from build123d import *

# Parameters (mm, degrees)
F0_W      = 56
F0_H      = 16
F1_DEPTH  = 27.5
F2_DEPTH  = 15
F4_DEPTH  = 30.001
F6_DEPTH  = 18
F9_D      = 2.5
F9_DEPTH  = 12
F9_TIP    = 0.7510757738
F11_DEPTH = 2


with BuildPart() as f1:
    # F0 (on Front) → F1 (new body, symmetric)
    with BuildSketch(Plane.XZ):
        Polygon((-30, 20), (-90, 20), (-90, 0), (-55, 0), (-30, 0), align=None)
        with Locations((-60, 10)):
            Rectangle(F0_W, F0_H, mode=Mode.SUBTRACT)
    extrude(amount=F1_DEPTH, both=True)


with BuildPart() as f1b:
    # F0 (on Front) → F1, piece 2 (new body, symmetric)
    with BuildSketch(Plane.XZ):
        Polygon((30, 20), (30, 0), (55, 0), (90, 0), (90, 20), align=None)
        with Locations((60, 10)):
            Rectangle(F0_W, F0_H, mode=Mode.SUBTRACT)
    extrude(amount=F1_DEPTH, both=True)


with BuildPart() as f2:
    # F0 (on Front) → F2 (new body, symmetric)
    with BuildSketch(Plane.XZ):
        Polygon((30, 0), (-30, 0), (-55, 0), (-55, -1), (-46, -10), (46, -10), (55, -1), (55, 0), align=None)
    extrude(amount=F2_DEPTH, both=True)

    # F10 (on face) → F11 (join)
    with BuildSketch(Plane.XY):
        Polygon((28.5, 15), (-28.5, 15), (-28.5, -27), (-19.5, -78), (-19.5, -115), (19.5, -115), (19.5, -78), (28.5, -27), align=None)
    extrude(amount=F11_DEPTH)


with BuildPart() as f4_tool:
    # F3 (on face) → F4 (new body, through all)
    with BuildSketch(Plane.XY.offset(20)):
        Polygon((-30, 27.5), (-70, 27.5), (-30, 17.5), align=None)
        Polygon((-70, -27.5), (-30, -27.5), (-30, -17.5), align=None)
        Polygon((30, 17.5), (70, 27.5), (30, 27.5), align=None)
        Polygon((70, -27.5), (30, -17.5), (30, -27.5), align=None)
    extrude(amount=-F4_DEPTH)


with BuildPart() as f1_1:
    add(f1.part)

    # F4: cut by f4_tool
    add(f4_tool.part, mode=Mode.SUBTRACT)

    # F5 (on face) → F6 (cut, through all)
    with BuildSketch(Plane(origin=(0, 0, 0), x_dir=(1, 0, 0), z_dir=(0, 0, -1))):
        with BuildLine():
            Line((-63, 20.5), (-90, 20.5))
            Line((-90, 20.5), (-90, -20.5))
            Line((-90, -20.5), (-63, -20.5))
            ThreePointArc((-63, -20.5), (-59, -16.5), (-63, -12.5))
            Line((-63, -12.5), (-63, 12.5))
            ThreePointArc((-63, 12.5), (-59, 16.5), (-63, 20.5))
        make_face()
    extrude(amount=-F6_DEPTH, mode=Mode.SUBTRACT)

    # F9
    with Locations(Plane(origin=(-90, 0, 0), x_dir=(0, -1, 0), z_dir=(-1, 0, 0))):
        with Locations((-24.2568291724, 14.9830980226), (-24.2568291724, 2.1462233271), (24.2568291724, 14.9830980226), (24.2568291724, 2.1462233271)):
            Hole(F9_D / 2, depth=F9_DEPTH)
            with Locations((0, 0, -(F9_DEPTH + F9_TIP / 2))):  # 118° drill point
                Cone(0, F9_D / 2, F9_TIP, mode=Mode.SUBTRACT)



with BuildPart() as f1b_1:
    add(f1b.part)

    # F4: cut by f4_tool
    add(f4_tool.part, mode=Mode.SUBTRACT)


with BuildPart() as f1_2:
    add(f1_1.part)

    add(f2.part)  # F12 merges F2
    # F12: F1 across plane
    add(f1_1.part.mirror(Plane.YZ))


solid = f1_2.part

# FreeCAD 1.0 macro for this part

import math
import FreeCAD as App
import Part
import Sketcher
from FreeCAD import Vector

doc = App.newDocument("Part")
body = doc.addObject("PartDesign::Body", "Body")

# Sketch on XZ plane
sketch1 = body.newObject("Sketcher::SketchObject", "Sketch")
sketch1.AttachmentSupport = (doc.getObject("XZ_Plane"), [""])
sketch1.MapMode = "FlatFace"
sketch1.addGeometry(Part.LineSegment(Vector(-30, 20, 0), Vector(-90, 20, 0)), False)
sketch1.addGeometry(Part.LineSegment(Vector(-90, 20, 0), Vector(-90, 0, 0)), False)
sketch1.addGeometry(Part.LineSegment(Vector(-90, 0, 0), Vector(-30, 0, 0)), False)
sketch1.addGeometry(Part.LineSegment(Vector(-30, 0, 0), Vector(-30, 20, 0)), False)
sketch1.addGeometry(Part.LineSegment(Vector(-32, 2, 0), Vector(-88, 2, 0)), False)
sketch1.addGeometry(Part.LineSegment(Vector(-88, 2, 0), Vector(-88, 18, 0)), False)
sketch1.addGeometry(Part.LineSegment(Vector(-88, 18, 0), Vector(-32, 18, 0)), False)
sketch1.addGeometry(Part.LineSegment(Vector(-32, 18, 0), Vector(-32, 2, 0)), False)
sketch1.addConstraint(Sketcher.Constraint("Coincident", 0, 2, 1, 1))
sketch1.addConstraint(Sketcher.Constraint("Coincident", 1, 2, 2, 1))
sketch1.addConstraint(Sketcher.Constraint("Coincident", 2, 2, 3, 1))
sketch1.addConstraint(Sketcher.Constraint("Coincident", 3, 2, 0, 1))
sketch1.addConstraint(Sketcher.Constraint("Coincident", 4, 2, 5, 1))
sketch1.addConstraint(Sketcher.Constraint("Coincident", 5, 2, 6, 1))
sketch1.addConstraint(Sketcher.Constraint("Coincident", 6, 2, 7, 1))
sketch1.addConstraint(Sketcher.Constraint("Coincident", 7, 2, 4, 1))
sketch1.addConstraint(Sketcher.Constraint("Horizontal", 0))
sketch1.addConstraint(Sketcher.Constraint("Vertical", 1))
sketch1.addConstraint(Sketcher.Constraint("Horizontal", 2))
sketch1.addConstraint(Sketcher.Constraint("Vertical", 3))
sketch1.addConstraint(Sketcher.Constraint("Horizontal", 4))
sketch1.addConstraint(Sketcher.Constraint("Vertical", 5))
sketch1.addConstraint(Sketcher.Constraint("Horizontal", 6))
sketch1.addConstraint(Sketcher.Constraint("Vertical", 7))
sketch1.addConstraint(Sketcher.Constraint("PointOnObject", 1, 2, -1))
sketch1.addConstraint(Sketcher.Constraint("DistanceX", 0, 2, 0, 1, 60.0))
sketch1.addConstraint(Sketcher.Constraint("DistanceX", 4, 2, 4, 1, 56.0))
sketch1.addConstraint(Sketcher.Constraint("DistanceY", 1, 2, 1, 1, 20.0))
sketch1.addConstraint(Sketcher.Constraint("DistanceY", 5, 1, 5, 2, 16.0))
sketch1.addConstraint(Sketcher.Constraint("DistanceX", 0, 2, -1, 1, 90.0))
sketch1.addConstraint(Sketcher.Constraint("DistanceX", 4, 2, -1, 1, 88.0))
sketch1.addConstraint(Sketcher.Constraint("DistanceY", -1, 1, 4, 2, 2.0))
pad1 = body.newObject("PartDesign::Pad", "Pad")
pad1.Profile = sketch1
pad1.Length = 55
pad1.Midplane = True
body2 = doc.addObject("PartDesign::Body", "Body001")

# Sketch on XZ plane
sketch2 = body2.newObject("Sketcher::SketchObject", "Sketch001")
sketch2.AttachmentSupport = (doc.getObject("XZ_Plane001"), [""])
sketch2.MapMode = "FlatFace"
sketch2.addGeometry(Part.LineSegment(Vector(30, 20, 0), Vector(30, 0, 0)), False)
sketch2.addGeometry(Part.LineSegment(Vector(30, 0, 0), Vector(90, 0, 0)), False)
sketch2.addGeometry(Part.LineSegment(Vector(90, 0, 0), Vector(90, 20, 0)), False)
sketch2.addGeometry(Part.LineSegment(Vector(90, 20, 0), Vector(30, 20, 0)), False)
sketch2.addGeometry(Part.LineSegment(Vector(88, 2, 0), Vector(32, 2, 0)), False)
sketch2.addGeometry(Part.LineSegment(Vector(32, 2, 0), Vector(32, 18, 0)), False)
sketch2.addGeometry(Part.LineSegment(Vector(32, 18, 0), Vector(88, 18, 0)), False)
sketch2.addGeometry(Part.LineSegment(Vector(88, 18, 0), Vector(88, 2, 0)), False)
sketch2.addConstraint(Sketcher.Constraint("Coincident", 0, 2, 1, 1))
sketch2.addConstraint(Sketcher.Constraint("Coincident", 1, 2, 2, 1))
sketch2.addConstraint(Sketcher.Constraint("Coincident", 2, 2, 3, 1))
sketch2.addConstraint(Sketcher.Constraint("Coincident", 3, 2, 0, 1))
sketch2.addConstraint(Sketcher.Constraint("Coincident", 4, 2, 5, 1))
sketch2.addConstraint(Sketcher.Constraint("Coincident", 5, 2, 6, 1))
sketch2.addConstraint(Sketcher.Constraint("Coincident", 6, 2, 7, 1))
sketch2.addConstraint(Sketcher.Constraint("Coincident", 7, 2, 4, 1))
sketch2.addConstraint(Sketcher.Constraint("Vertical", 0))
sketch2.addConstraint(Sketcher.Constraint("Horizontal", 1))
sketch2.addConstraint(Sketcher.Constraint("Vertical", 2))
sketch2.addConstraint(Sketcher.Constraint("Horizontal", 3))
sketch2.addConstraint(Sketcher.Constraint("Horizontal", 4))
sketch2.addConstraint(Sketcher.Constraint("Vertical", 5))
sketch2.addConstraint(Sketcher.Constraint("Horizontal", 6))
sketch2.addConstraint(Sketcher.Constraint("Vertical", 7))
sketch2.addConstraint(Sketcher.Constraint("PointOnObject", 0, 2, -1))
sketch2.addConstraint(Sketcher.Constraint("DistanceX", 1, 1, 1, 2, 60.0))
sketch2.addConstraint(Sketcher.Constraint("DistanceX", 4, 2, 4, 1, 56.0))
sketch2.addConstraint(Sketcher.Constraint("DistanceY", 0, 2, 0, 1, 20.0))
sketch2.addConstraint(Sketcher.Constraint("DistanceY", 5, 1, 5, 2, 16.0))
sketch2.addConstraint(Sketcher.Constraint("DistanceX", -1, 1, 0, 2, 30.0))
sketch2.addConstraint(Sketcher.Constraint("DistanceX", -1, 1, 4, 2, 32.0))
sketch2.addConstraint(Sketcher.Constraint("DistanceY", -1, 1, 4, 2, 2.0))
pad2 = body2.newObject("PartDesign::Pad", "Pad001")
pad2.Profile = sketch2
pad2.Length = 55
pad2.Midplane = True
body3 = doc.addObject("PartDesign::Body", "Body002")

# Sketch on XZ plane
sketch3 = body3.newObject("Sketcher::SketchObject", "Sketch002")
sketch3.AttachmentSupport = (doc.getObject("XZ_Plane002"), [""])
sketch3.MapMode = "FlatFace"
sketch3.addGeometry(Part.LineSegment(Vector(-55, 0, 0), Vector(-55, -1, 0)), False)
sketch3.addGeometry(Part.LineSegment(Vector(-55, -1, 0), Vector(-46, -10, 0)), False)
sketch3.addGeometry(Part.LineSegment(Vector(-46, -10, 0), Vector(46, -10, 0)), False)
sketch3.addGeometry(Part.LineSegment(Vector(46, -10, 0), Vector(55, -1, 0)), False)
sketch3.addGeometry(Part.LineSegment(Vector(55, -1, 0), Vector(55, 0, 0)), False)
sketch3.addGeometry(Part.LineSegment(Vector(55, 0, 0), Vector(-55, 0, 0)), False)
sketch3.addConstraint(Sketcher.Constraint("Coincident", 0, 2, 1, 1))
sketch3.addConstraint(Sketcher.Constraint("Coincident", 1, 2, 2, 1))
sketch3.addConstraint(Sketcher.Constraint("Coincident", 2, 2, 3, 1))
sketch3.addConstraint(Sketcher.Constraint("Coincident", 3, 2, 4, 1))
sketch3.addConstraint(Sketcher.Constraint("Coincident", 4, 2, 5, 1))
sketch3.addConstraint(Sketcher.Constraint("Coincident", 5, 2, 0, 1))
sketch3.addConstraint(Sketcher.Constraint("Vertical", 0))
sketch3.addConstraint(Sketcher.Constraint("Horizontal", 2))
sketch3.addConstraint(Sketcher.Constraint("Vertical", 4))
sketch3.addConstraint(Sketcher.Constraint("Horizontal", 5))
sketch3.addConstraint(Sketcher.Constraint("Symmetric", 4, 2, 5, 2, -1, 1))
sketch3.addConstraint(Sketcher.Constraint("Perpendicular", 1, 3))
sketch3.addConstraint(Sketcher.Constraint("Horizontal", 0, 2, 3, 2))
sketch3.addConstraint(Sketcher.Constraint("Equal", 1, 3))
sketch3.addConstraint(Sketcher.Constraint("DistanceX", 2, 1, 2, 2, 92.0))
sketch3.addConstraint(Sketcher.Constraint("DistanceX", 5, 2, 5, 1, 110.0))
sketch3.addConstraint(Sketcher.Constraint("DistanceY", 0, 2, 0, 1, 1.0))
pad3 = body3.newObject("PartDesign::Pad", "Pad002")
pad3.Profile = sketch3
pad3.Length = 30
pad3.Midplane = True

# Sketch on XY plane
sketch4 = body3.newObject("Sketcher::SketchObject", "Sketch003")
sketch4.AttachmentSupport = (doc.getObject("XY_Plane002"), [""])
sketch4.MapMode = "FlatFace"
sketch4.addGeometry(Part.LineSegment(Vector(28.5, 15, 0), Vector(-28.5, 15, 0)), False)
sketch4.addGeometry(Part.LineSegment(Vector(-28.5, 15, 0), Vector(-28.5, -27, 0)), False)
sketch4.addGeometry(Part.LineSegment(Vector(-28.5, -27, 0), Vector(-19.5, -78, 0)), False)
sketch4.addGeometry(Part.LineSegment(Vector(-19.5, -78, 0), Vector(-19.5, -115, 0)), False)
sketch4.addGeometry(Part.LineSegment(Vector(-19.5, -115, 0), Vector(19.5, -115, 0)), False)
sketch4.addGeometry(Part.LineSegment(Vector(19.5, -115, 0), Vector(19.5, -78, 0)), False)
sketch4.addGeometry(Part.LineSegment(Vector(19.5, -78, 0), Vector(28.5, -27, 0)), False)
sketch4.addGeometry(Part.LineSegment(Vector(28.5, -27, 0), Vector(28.5, 15, 0)), False)
sketch4.addConstraint(Sketcher.Constraint("Coincident", 0, 2, 1, 1))
sketch4.addConstraint(Sketcher.Constraint("Coincident", 1, 2, 2, 1))
sketch4.addConstraint(Sketcher.Constraint("Coincident", 2, 2, 3, 1))
sketch4.addConstraint(Sketcher.Constraint("Coincident", 3, 2, 4, 1))
sketch4.addConstraint(Sketcher.Constraint("Coincident", 4, 2, 5, 1))
sketch4.addConstraint(Sketcher.Constraint("Coincident", 5, 2, 6, 1))
sketch4.addConstraint(Sketcher.Constraint("Coincident", 6, 2, 7, 1))
sketch4.addConstraint(Sketcher.Constraint("Coincident", 7, 2, 0, 1))
sketch4.addConstraint(Sketcher.Constraint("Horizontal", 0))
sketch4.addConstraint(Sketcher.Constraint("Vertical", 1))
sketch4.addConstraint(Sketcher.Constraint("Vertical", 3))
sketch4.addConstraint(Sketcher.Constraint("Horizontal", 4))
sketch4.addConstraint(Sketcher.Constraint("Vertical", 5))
sketch4.addConstraint(Sketcher.Constraint("Vertical", 7))
sketch4.addConstraint(Sketcher.Constraint("Symmetric", 2, 2, 5, 2, -2))
sketch4.addConstraint(Sketcher.Constraint("Symmetric", 1, 2, 6, 2, -2))
sketch4.addConstraint(Sketcher.Constraint("DistanceX", 0, 2, 0, 1, 57.0))
sketch4.addConstraint(Sketcher.Constraint("DistanceX", 4, 1, 4, 2, 39.0))
sketch4.addConstraint(Sketcher.Constraint("DistanceY", 1, 2, 1, 1, 42.0))
sketch4.addConstraint(Sketcher.Constraint("DistanceY", 3, 2, 3, 1, 37.0))
sketch4.addConstraint(Sketcher.Constraint("DistanceY", -1, 1, 0, 2, 15.0))
sketch4.addConstraint(Sketcher.Constraint("DistanceY", 2, 2, -1, 1, 78.0))
pad4 = body3.newObject("PartDesign::Pad", "Pad003")
pad4.Profile = sketch4
pad4.Length = 2
body4 = doc.addObject("PartDesign::Body", "Body003")
body4.AllowCompound = True

# Sketch on XY plane
sketch5 = body4.newObject("Sketcher::SketchObject", "Sketch004")
sketch5.AttachmentSupport = (doc.getObject("XY_Plane003"), [""])
sketch5.MapMode = "FlatFace"
sketch5.AttachmentOffset = App.Placement(Vector(0, 0, 20), App.Rotation())
sketch5.addGeometry(Part.LineSegment(Vector(-30, 27.5, 0), Vector(-70, 27.5, 0)), False)
sketch5.addGeometry(Part.LineSegment(Vector(-70, 27.5, 0), Vector(-30, 17.5, 0)), False)
sketch5.addGeometry(Part.LineSegment(Vector(-30, 17.5, 0), Vector(-30, 27.5, 0)), False)
sketch5.addGeometry(Part.LineSegment(Vector(-70, -27.5, 0), Vector(-30, -27.5, 0)), False)
sketch5.addGeometry(Part.LineSegment(Vector(-30, -27.5, 0), Vector(-30, -17.5, 0)), False)
sketch5.addGeometry(Part.LineSegment(Vector(-30, -17.5, 0), Vector(-70, -27.5, 0)), False)
sketch5.addGeometry(Part.LineSegment(Vector(30, 17.5, 0), Vector(70, 27.5, 0)), False)
sketch5.addGeometry(Part.LineSegment(Vector(70, 27.5, 0), Vector(30, 27.5, 0)), False)
sketch5.addGeometry(Part.LineSegment(Vector(30, 27.5, 0), Vector(30, 17.5, 0)), False)
sketch5.addGeometry(Part.LineSegment(Vector(70, -27.5, 0), Vector(30, -17.5, 0)), False)
sketch5.addGeometry(Part.LineSegment(Vector(30, -17.5, 0), Vector(30, -27.5, 0)), False)
sketch5.addGeometry(Part.LineSegment(Vector(30, -27.5, 0), Vector(70, -27.5, 0)), False)
sketch5.addConstraint(Sketcher.Constraint("Coincident", 0, 2, 1, 1))
sketch5.addConstraint(Sketcher.Constraint("Coincident", 1, 2, 2, 1))
sketch5.addConstraint(Sketcher.Constraint("Coincident", 2, 2, 0, 1))
sketch5.addConstraint(Sketcher.Constraint("Coincident", 3, 2, 4, 1))
sketch5.addConstraint(Sketcher.Constraint("Coincident", 4, 2, 5, 1))
sketch5.addConstraint(Sketcher.Constraint("Coincident", 5, 2, 3, 1))
sketch5.addConstraint(Sketcher.Constraint("Coincident", 6, 2, 7, 1))
sketch5.addConstraint(Sketcher.Constraint("Coincident", 7, 2, 8, 1))
sketch5.addConstraint(Sketcher.Constraint("Coincident", 8, 2, 6, 1))
sketch5.addConstraint(Sketcher.Constraint("Coincident", 9, 2, 10, 1))
sketch5.addConstraint(Sketcher.Constraint("Coincident", 10, 2, 11, 1))
sketch5.addConstraint(Sketcher.Constraint("Coincident", 11, 2, 9, 1))
sketch5.addConstraint(Sketcher.Constraint("Horizontal", 0))
sketch5.addConstraint(Sketcher.Constraint("Vertical", 2))
sketch5.addConstraint(Sketcher.Constraint("Horizontal", 3))
sketch5.addConstraint(Sketcher.Constraint("Vertical", 4))
sketch5.addConstraint(Sketcher.Constraint("Horizontal", 7))
sketch5.addConstraint(Sketcher.Constraint("Vertical", 8))
sketch5.addConstraint(Sketcher.Constraint("Vertical", 10))
sketch5.addConstraint(Sketcher.Constraint("Horizontal", 11))
sketch5.addConstraint(Sketcher.Constraint("Symmetric", 5, 2, 6, 2, -1, 1))
sketch5.addConstraint(Sketcher.Constraint("Symmetric", 4, 2, 8, 2, -1, 1))
sketch5.addConstraint(Sketcher.Constraint("Symmetric", 1, 2, 9, 2, -1, 1))
sketch5.addConstraint(Sketcher.Constraint("Symmetric", 0, 2, 11, 2, -1, 1))
sketch5.addConstraint(Sketcher.Constraint("Symmetric", 0, 2, 6, 2, -2))
sketch5.addConstraint(Sketcher.Constraint("Symmetric", 1, 2, 8, 2, -2))
sketch5.addConstraint(Sketcher.Constraint("DistanceX", 0, 2, 0, 1, 40.0))
sketch5.addConstraint(Sketcher.Constraint("DistanceY", 2, 1, 2, 2, 10.0))
sketch5.addConstraint(Sketcher.Constraint("DistanceX", 0, 2, -1, 1, 70.0))
sketch5.addConstraint(Sketcher.Constraint("DistanceY", 3, 2, 1, 2, 45.0))
pad5 = body4.newObject("PartDesign::Pad", "Pad004")
pad5.Profile = sketch5
pad5.Length = 30.001
pad5.Reversed = True
doc.recompute()

body5 = doc.addObject("PartDesign::Body", "Body004")
body5.BaseFeature = body4
boolean = body.newObject("PartDesign::Boolean", "Boolean")
boolean.Type = "Cut"
boolean.addObjects([body5])
doc.recompute()

# Sketch on XY plane
sketch6 = body.newObject("Sketcher::SketchObject", "Sketch005")
sketch6.AttachmentSupport = (doc.getObject("XY_Plane"), [""])
sketch6.MapMode = "FlatFace"
sketch6.addGeometry(Part.LineSegment(Vector(-63, -20.5, 0), Vector(-90, -20.5, 0)), False)
sketch6.addGeometry(Part.LineSegment(Vector(-90, -20.5, 0), Vector(-90, 20.5, 0)), False)
sketch6.addGeometry(Part.LineSegment(Vector(-90, 20.5, 0), Vector(-63, 20.5, 0)), False)
sketch6.addGeometry(Part.ArcOfCircle(Part.Circle(Vector(-63, 16.5, 0), Vector(0, 0, 1), 4), math.radians(-90), math.radians(90)), False)
sketch6.addGeometry(Part.LineSegment(Vector(-63, 12.5, 0), Vector(-63, -12.5, 0)), False)
sketch6.addGeometry(Part.ArcOfCircle(Part.Circle(Vector(-63, -16.5, 0), Vector(0, 0, 1), 4), math.radians(-90), math.radians(90)), False)
sketch6.addConstraint(Sketcher.Constraint("Coincident", 0, 2, 1, 1))
sketch6.addConstraint(Sketcher.Constraint("Coincident", 1, 2, 2, 1))
sketch6.addConstraint(Sketcher.Constraint("Tangent", 2, 2, 3, 2))
sketch6.addConstraint(Sketcher.Constraint("Coincident", 3, 1, 4, 1))
sketch6.addConstraint(Sketcher.Constraint("Coincident", 4, 2, 5, 2))
sketch6.addConstraint(Sketcher.Constraint("Tangent", 5, 1, 0, 1))
sketch6.addConstraint(Sketcher.Constraint("Horizontal", 0))
sketch6.addConstraint(Sketcher.Constraint("Vertical", 1))
sketch6.addConstraint(Sketcher.Constraint("Horizontal", 2))
sketch6.addConstraint(Sketcher.Constraint("Vertical", 4))
sketch6.addConstraint(Sketcher.Constraint("Equal", 3, 5))
sketch6.addConstraint(Sketcher.Constraint("Symmetric", 3, 3, 5, 3, -1))
sketch6.addConstraint(Sketcher.Constraint("Vertical", 2, 2, 3, 1))
sketch6.addConstraint(Sketcher.Constraint("Radius", 3, 4.0))
sketch6.addConstraint(Sketcher.Constraint("DistanceX", 0, 2, 0, 1, 27.0))
sketch6.addConstraint(Sketcher.Constraint("DistanceY", 1, 1, 1, 2, 41.0))
sketch6.addConstraint(Sketcher.Constraint("DistanceX", 3, 3, -1, 1, 63.0))
pocket1 = body.newObject("PartDesign::Pocket", "Pocket")
pocket1.Profile = sketch6
pocket1.Length = 18
pocket1.Reversed = True

# Sketch on YZ plane
sketch7 = body.newObject("Sketcher::SketchObject", "Sketch006")
sketch7.AttachmentSupport = (doc.getObject("YZ_Plane"), [""])
sketch7.MapMode = "FlatFace"
sketch7.AttachmentOffset = App.Placement(Vector(0, 0, -90), App.Rotation())
sketch7.addGeometry(Part.Circle(Vector(24.256829, 14.983098, 0), Vector(0, 0, 1), 1.25), False)
sketch7.addGeometry(Part.Circle(Vector(24.256829, 2.146223, 0), Vector(0, 0, 1), 1.25), False)
sketch7.addGeometry(Part.Circle(Vector(-24.256829, 14.983098, 0), Vector(0, 0, 1), 1.25), False)
sketch7.addGeometry(Part.Circle(Vector(-24.256829, 2.146223, 0), Vector(0, 0, 1), 1.25), False)
sketch7.addConstraint(Sketcher.Constraint("Equal", 0, 1))
sketch7.addConstraint(Sketcher.Constraint("Equal", 1, 2))
sketch7.addConstraint(Sketcher.Constraint("Equal", 2, 3))
sketch7.addConstraint(Sketcher.Constraint("Symmetric", 0, 3, 2, 3, -2))
sketch7.addConstraint(Sketcher.Constraint("Symmetric", 1, 3, 3, 3, -2))
sketch7.addConstraint(Sketcher.Constraint("Vertical", 0, 3, 1, 3))
sketch7.addConstraint(Sketcher.Constraint("Diameter", 0, 2.5))
sketch7.addConstraint(Sketcher.Constraint("DistanceY", -1, 1, 0, 3, 14.983098))
sketch7.addConstraint(Sketcher.Constraint("DistanceX", -1, 1, 0, 3, 24.256829))
sketch7.addConstraint(Sketcher.Constraint("DistanceY", -1, 1, 1, 3, 2.146223))
doc.recompute()
hole = body.newObject("PartDesign::Hole", "Hole")
hole.Profile = sketch7
hole.ThreadType = "None"
hole.Diameter = 2.5
hole.DepthType = "Dimension"
hole.Depth = 12
hole.DrillPoint = "Angled"
hole.DrillPointAngle = 118
hole.Reversed = True
doc.recompute()

boolean2 = body2.newObject("PartDesign::Boolean", "Boolean001")
boolean2.Type = "Cut"
boolean2.addObjects([body4])
body6 = doc.addObject("PartDesign::Body", "Body005")
doc.recompute()

body6.BaseFeature = body
doc.recompute()

boolean3 = body6.newObject("PartDesign::Boolean", "Boolean002")
boolean3.Type = "Fuse"
boolean3.addObjects([body3])
doc.recompute()

mirroring = doc.addObject("Part::Mirroring", "Mirroring")
mirroring.Source = body
mirroring.Base = Vector(0, 0, 0)
mirroring.Normal = Vector(1, 0, 0)
body7 = doc.addObject("PartDesign::Body", "Body006")
body7.BaseFeature = mirroring
boolean4 = body6.newObject("PartDesign::Boolean", "Boolean003")
boolean4.Type = "Fuse"
boolean4.addObjects([body7])
doc.recompute()
body2.Visibility = False
mirroring.Visibility = False

doc.recompute()
